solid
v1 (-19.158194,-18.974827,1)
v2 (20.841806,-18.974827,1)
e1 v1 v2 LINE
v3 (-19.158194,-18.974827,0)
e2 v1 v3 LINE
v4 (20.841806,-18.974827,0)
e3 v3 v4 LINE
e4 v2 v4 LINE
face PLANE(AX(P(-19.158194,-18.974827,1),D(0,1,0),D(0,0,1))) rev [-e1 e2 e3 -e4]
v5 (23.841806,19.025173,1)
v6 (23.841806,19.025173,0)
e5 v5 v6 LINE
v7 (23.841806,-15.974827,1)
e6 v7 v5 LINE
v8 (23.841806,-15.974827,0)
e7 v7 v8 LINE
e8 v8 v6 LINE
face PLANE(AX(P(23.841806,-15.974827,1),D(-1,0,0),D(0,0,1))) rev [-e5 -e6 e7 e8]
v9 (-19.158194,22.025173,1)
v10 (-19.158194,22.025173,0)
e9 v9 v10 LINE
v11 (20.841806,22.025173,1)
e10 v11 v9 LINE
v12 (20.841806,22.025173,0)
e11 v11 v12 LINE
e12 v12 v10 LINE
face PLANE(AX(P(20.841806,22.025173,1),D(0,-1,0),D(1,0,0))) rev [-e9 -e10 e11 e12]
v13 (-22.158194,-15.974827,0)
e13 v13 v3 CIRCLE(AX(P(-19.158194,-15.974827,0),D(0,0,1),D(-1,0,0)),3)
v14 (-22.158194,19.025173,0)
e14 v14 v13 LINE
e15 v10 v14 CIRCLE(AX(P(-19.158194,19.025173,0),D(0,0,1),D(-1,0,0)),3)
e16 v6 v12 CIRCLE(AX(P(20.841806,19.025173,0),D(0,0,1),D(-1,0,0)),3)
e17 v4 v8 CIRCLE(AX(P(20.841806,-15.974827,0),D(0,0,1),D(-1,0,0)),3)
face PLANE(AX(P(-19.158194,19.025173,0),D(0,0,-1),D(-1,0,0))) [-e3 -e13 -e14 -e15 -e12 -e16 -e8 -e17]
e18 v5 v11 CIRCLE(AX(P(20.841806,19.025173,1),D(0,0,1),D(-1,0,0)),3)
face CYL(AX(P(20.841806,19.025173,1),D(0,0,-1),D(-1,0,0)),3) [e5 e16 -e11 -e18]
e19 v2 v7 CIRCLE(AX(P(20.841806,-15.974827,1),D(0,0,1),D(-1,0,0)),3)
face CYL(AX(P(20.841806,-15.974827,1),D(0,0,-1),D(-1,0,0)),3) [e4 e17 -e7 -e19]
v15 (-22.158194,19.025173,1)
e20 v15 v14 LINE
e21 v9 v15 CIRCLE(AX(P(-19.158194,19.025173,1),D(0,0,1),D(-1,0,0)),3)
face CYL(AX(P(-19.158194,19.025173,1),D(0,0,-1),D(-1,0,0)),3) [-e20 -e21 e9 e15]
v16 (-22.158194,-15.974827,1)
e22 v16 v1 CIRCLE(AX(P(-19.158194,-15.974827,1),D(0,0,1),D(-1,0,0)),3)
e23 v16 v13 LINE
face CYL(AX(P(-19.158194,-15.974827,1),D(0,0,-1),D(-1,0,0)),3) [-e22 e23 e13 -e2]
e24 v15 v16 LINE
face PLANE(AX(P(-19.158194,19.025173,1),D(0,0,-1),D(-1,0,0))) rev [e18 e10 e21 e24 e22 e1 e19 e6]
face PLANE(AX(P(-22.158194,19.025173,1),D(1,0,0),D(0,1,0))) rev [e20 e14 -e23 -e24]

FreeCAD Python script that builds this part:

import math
import FreeCAD as App
import Part
import Sketcher
Q = App.Units.Quantity

doc = App.newDocument("Part")
body = doc.addObject("PartDesign::Body", "Body")

# Sketch on XY plane
sketch1 = doc.addObject("Sketcher::SketchObject", "Sketch")
body.addObject(sketch1)
sketch1.AttachmentSupport = (doc.XY_Plane, [""])
sketch1.MapMode = "FlatFace"
sketch1.addGeometry([
    Part.LineSegment(App.Vector(-22.158194, 19.025173, 0), App.Vector(-22.158194, -15.974827, 0)),  # 0
    Part.ArcOfCircle(Part.Circle(App.Vector(-19.158194, -15.974827, 0), App.Vector(0, 0, 1), 3), math.radians(-180), math.radians(-90)),  # 1
    Part.LineSegment(App.Vector(-19.158194, -18.974827, 0), App.Vector(20.841806, -18.974827, 0)),  # 2
    Part.ArcOfCircle(Part.Circle(App.Vector(20.841806, -15.974827, 0), App.Vector(0, 0, 1), 3), math.radians(-90), math.radians(0)),  # 3
    Part.LineSegment(App.Vector(23.841806, -15.974827, 0), App.Vector(23.841806, 19.025173, 0)),  # 4
    Part.ArcOfCircle(Part.Circle(App.Vector(20.841806, 19.025173, 0), App.Vector(0, 0, 1), 3), math.radians(0), math.radians(90)),  # 5
    Part.LineSegment(App.Vector(20.841806, 22.025173, 0), App.Vector(-19.158194, 22.025173, 0)),  # 6
    Part.ArcOfCircle(Part.Circle(App.Vector(-19.158194, 19.025173, 0), App.Vector(0, 0, 1), 3), math.radians(90), math.radians(180)),  # 7
], False)
sketch1.addConstraint([
    Sketcher.Constraint("Tangent", 0, 2, 1, 1),
    Sketcher.Constraint("Tangent", 1, 2, 2, 1),
    Sketcher.Constraint("Tangent", 2, 2, 3, 1),
    Sketcher.Constraint("Tangent", 3, 2, 4, 1),
    Sketcher.Constraint("Tangent", 4, 2, 5, 1),
    Sketcher.Constraint("Tangent", 5, 2, 6, 1),
    Sketcher.Constraint("Tangent", 6, 2, 7, 1),
    Sketcher.Constraint("Tangent", 7, 2, 0, 1),
    Sketcher.Constraint("Vertical", 0),
    Sketcher.Constraint("Horizontal", 2),
    Sketcher.Constraint("Vertical", 4),
    Sketcher.Constraint("Horizontal", 6),
    Sketcher.Constraint("Equal", 1, 3),
    Sketcher.Constraint("Equal", 3, 5),
    Sketcher.Constraint("Equal", 5, 7),
    Sketcher.Constraint("Radius", 1, Q("3 mm")),
    Sketcher.Constraint("DistanceX", 2, 1, 2, 2, Q("40 mm")),
    Sketcher.Constraint("DistanceY", 0, 2, 0, 1, Q("35 mm")),
    Sketcher.Constraint("DistanceX", 1, 3, -1, 1, Q("19.158194 mm")),
    Sketcher.Constraint("DistanceY", 1, 3, -1, 1, Q("15.974827 mm")),
])
pad1 = doc.addObject("PartDesign::Pad", "Pad")
body.addObject(pad1)
pad1.Profile = sketch1
pad1.Length = 1

doc.recompute()
